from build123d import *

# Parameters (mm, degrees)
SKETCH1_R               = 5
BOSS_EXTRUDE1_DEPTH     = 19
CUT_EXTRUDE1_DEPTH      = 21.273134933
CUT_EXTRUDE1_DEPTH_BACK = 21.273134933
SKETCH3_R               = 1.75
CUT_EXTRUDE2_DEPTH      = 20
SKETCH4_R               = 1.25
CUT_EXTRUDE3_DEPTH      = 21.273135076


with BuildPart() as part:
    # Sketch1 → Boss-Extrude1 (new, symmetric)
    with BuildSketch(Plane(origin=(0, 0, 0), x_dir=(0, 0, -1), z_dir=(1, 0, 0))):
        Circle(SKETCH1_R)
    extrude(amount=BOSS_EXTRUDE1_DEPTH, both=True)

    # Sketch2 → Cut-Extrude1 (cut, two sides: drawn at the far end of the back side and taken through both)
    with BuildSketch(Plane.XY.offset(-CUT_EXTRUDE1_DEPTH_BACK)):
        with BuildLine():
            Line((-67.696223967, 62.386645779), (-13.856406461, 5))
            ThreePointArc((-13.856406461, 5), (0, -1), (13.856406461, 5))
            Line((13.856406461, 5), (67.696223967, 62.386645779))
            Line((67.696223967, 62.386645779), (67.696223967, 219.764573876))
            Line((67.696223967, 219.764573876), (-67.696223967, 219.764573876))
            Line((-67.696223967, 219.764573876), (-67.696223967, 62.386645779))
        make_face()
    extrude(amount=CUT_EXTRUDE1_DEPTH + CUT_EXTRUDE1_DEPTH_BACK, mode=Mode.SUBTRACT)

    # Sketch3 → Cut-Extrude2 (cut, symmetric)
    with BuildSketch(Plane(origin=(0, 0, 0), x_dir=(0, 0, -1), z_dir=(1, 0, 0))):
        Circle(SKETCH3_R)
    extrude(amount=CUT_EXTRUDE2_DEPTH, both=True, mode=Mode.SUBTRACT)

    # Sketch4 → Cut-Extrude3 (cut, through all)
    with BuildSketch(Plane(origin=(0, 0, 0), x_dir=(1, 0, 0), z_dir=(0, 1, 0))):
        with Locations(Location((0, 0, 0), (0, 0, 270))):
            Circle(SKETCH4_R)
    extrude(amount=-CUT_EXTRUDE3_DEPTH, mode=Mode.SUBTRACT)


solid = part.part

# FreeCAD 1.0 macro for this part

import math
import FreeCAD as App
import Part
import Sketcher
Q = App.Units.Quantity

doc = App.newDocument("Part")
params = doc.addObject("Spreadsheet::Sheet", "Params")
for row, (alias, value) in enumerate([
    ("sketch1_diameter", "10 mm"),
    ("pad1_length", "38 mm"),
    ("sketch2_radius", "19 mm"),
    ("sketch3_diameter", "3.5 mm"),
    ("pocket2_length", "40 mm"),
    ("sketch4_diameter", "2.5 mm"),
], start=1):
    params.set(f"A{row}", alias)
    params.set(f"B{row}", "=" + value)
    params.setAlias(f"B{row}", alias)

body = doc.addObject("PartDesign::Body", "Body")

# Sketch on YZ plane
sketch1 = body.newObject("Sketcher::SketchObject", "Sketch")
sketch1.AttachmentSupport = (doc.getObject("YZ_Plane"), [""])
sketch1.MapMode = "FlatFace"
sketch1.addGeometry(Part.Circle(App.Vector(0, 0, 0), App.Vector(0, 0, 1), 5), False)
sketch1.addConstraint(Sketcher.Constraint("Coincident", 0, 3, -1, 1))
sketch1.addConstraint(Sketcher.Constraint("Diameter", 0, Q("10 mm")))
sketch1.setExpression("Constraints[1]", "Params.sketch1_diameter")
pad1 = body.newObject("PartDesign::Pad", "Pad")
pad1.Profile = sketch1
pad1.setExpression("Length", "Params.pad1_length")
pad1.Midplane = True

# Sketch on XY plane
sketch2 = body.newObject("Sketcher::SketchObject", "Sketch001")
sketch2.AttachmentSupport = (doc.getObject("XY_Plane"), [""])
sketch2.MapMode = "FlatFace"
sketch2.addGeometry(Part.LineSegment(App.Vector(-67.696224, 62.386646, 0), App.Vector(-13.856406, 5, 0)), False)
sketch2.addGeometry(Part.ArcOfCircle(Part.Circle(App.Vector(0, 18, 0), App.Vector(0, 0, 1), 19), math.radians(-136.826449), math.radians(-43.173551)), False)
sketch2.addGeometry(Part.LineSegment(App.Vector(13.856406, 5, 0), App.Vector(67.696224, 62.386646, 0)), False)
sketch2.addGeometry(Part.LineSegment(App.Vector(67.696224, 62.386646, 0), App.Vector(67.696224, 219.764574, 0)), False)
sketch2.addGeometry(Part.LineSegment(App.Vector(67.696224, 219.764574, 0), App.Vector(-67.696224, 219.764574, 0)), False)
sketch2.addGeometry(Part.LineSegment(App.Vector(-67.696224, 219.764574, 0), App.Vector(-67.696224, 62.386646, 0)), False)
sketch2.addConstraint(Sketcher.Constraint("Tangent", 0, 2, 1, 1))
sketch2.addConstraint(Sketcher.Constraint("Tangent", 1, 2, 2, 1))
sketch2.addConstraint(Sketcher.Constraint("Coincident", 2, 2, 3, 1))
sketch2.addConstraint(Sketcher.Constraint("Coincident", 3, 2, 4, 1))
sketch2.addConstraint(Sketcher.Constraint("Coincident", 4, 2, 5, 1))
sketch2.addConstraint(Sketcher.Constraint("Coincident", 5, 2, 0, 1))
sketch2.addConstraint(Sketcher.Constraint("Vertical", 3))
sketch2.addConstraint(Sketcher.Constraint("Horizontal", 4))
sketch2.addConstraint(Sketcher.Constraint("Vertical", 5))
sketch2.addConstraint(Sketcher.Constraint("Symmetric", 0, 2, 1, 2, -2))
sketch2.addConstraint(Sketcher.Constraint("Horizontal", 2, 2, 5, 2))
sketch2.addConstraint(Sketcher.Constraint("Radius", 1, Q("19 mm")))
sketch2.addConstraint(Sketcher.Constraint("DistanceY", -1, 1, 1, 3, Q("18 mm")))
sketch2.addConstraint(Sketcher.Constraint("DistanceY", -1, 1, 0, 2, Q("5 mm")))
sketch2.addConstraint(Sketcher.Constraint("DistanceY", 3, 1, 3, 2, Q("157.377928 mm")))
sketch2.addConstraint(Sketcher.Constraint("DistanceX", 4, 2, 4, 1, Q("135.392448 mm")))
sketch2.setExpression("Constraints[11]", "Params.sketch2_radius")
pocket1 = body.newObject("PartDesign::Pocket", "Pocket")
pocket1.Profile = sketch2
pocket1.Type = "ThroughAll"
pocket1.Midplane = True

# Sketch on YZ plane
sketch3 = body.newObject("Sketcher::SketchObject", "Sketch002")
sketch3.AttachmentSupport = (doc.getObject("YZ_Plane"), [""])
sketch3.MapMode = "FlatFace"
sketch3.addGeometry(Part.Circle(App.Vector(0, 0, 0), App.Vector(0, 0, 1), 1.75), False)
sketch3.addConstraint(Sketcher.Constraint("Coincident", 0, 3, -1, 1))
sketch3.addConstraint(Sketcher.Constraint("Diameter", 0, Q("3.5 mm")))
sketch3.setExpression("Constraints[1]", "Params.sketch3_diameter")
pocket2 = body.newObject("PartDesign::Pocket", "Pocket001")
pocket2.Profile = sketch3
pocket2.setExpression("Length", "Params.pocket2_length")
pocket2.Midplane = True

# Sketch on XZ plane
sketch4 = body.newObject("Sketcher::SketchObject", "Sketch003")
sketch4.AttachmentSupport = (doc.getObject("XZ_Plane"), [""])
sketch4.MapMode = "FlatFace"
sketch4.addGeometry(Part.Circle(App.Vector(0, 0, 0), App.Vector(0, 0, 1), 1.25), False)
sketch4.addConstraint(Sketcher.Constraint("Coincident", 0, 3, -1, 1))
sketch4.addConstraint(Sketcher.Constraint("Diameter", 0, Q("2.5 mm")))
sketch4.setExpression("Constraints[1]", "Params.sketch4_diameter")
pocket3 = body.newObject("PartDesign::Pocket", "Pocket002")
pocket3.Profile = sketch4
pocket3.Type = "ThroughAll"
pocket3.Reversed = True

doc.recompute()
